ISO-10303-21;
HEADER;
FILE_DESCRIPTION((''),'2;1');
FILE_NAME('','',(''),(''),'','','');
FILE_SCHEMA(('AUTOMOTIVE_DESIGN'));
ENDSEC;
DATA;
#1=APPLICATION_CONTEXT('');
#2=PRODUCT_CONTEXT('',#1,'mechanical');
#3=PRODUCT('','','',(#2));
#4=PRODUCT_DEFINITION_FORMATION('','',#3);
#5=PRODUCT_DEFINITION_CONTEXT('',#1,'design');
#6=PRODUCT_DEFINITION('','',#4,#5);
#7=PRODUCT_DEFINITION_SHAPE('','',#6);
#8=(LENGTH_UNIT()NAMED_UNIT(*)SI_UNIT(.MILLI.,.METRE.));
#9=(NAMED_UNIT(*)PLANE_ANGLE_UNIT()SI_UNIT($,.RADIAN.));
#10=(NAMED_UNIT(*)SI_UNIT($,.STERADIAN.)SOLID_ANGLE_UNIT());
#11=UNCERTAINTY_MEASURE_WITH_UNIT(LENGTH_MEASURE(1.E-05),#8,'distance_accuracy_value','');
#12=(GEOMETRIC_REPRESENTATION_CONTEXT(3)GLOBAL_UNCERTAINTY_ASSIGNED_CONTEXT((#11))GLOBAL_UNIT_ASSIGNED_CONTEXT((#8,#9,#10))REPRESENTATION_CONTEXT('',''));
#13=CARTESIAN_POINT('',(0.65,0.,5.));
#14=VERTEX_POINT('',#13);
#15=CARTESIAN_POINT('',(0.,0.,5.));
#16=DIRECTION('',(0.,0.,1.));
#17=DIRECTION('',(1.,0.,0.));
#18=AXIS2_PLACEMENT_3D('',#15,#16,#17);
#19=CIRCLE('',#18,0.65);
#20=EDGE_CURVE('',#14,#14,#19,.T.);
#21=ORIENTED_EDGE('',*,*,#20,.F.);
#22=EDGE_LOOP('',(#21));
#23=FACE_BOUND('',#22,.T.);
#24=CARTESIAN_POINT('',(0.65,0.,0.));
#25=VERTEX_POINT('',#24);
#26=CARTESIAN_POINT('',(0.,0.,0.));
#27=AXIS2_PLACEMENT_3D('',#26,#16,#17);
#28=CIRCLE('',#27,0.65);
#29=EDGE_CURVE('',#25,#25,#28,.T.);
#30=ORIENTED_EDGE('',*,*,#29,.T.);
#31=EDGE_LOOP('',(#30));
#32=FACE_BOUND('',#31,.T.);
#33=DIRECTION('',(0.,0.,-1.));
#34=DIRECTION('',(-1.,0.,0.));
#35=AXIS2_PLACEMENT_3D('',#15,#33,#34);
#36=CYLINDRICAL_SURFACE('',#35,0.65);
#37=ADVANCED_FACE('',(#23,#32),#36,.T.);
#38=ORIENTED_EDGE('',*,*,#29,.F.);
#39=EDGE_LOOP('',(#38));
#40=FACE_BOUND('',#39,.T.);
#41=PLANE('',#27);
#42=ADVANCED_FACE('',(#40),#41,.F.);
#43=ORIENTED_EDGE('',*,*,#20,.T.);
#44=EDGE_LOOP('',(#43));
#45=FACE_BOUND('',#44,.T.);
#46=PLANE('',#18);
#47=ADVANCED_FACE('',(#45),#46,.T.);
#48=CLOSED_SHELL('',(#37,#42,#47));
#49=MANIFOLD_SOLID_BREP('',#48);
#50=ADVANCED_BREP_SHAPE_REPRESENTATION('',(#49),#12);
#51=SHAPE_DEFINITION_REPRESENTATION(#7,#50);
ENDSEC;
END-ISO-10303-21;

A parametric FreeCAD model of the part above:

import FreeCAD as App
import Part
import Sketcher

V = App.Vector
Q = App.Units.Quantity

doc = App.newDocument("Part")
body = doc.addObject("PartDesign::Body", "Body")

sketch1 = doc.addObject("Sketcher::SketchObject", "Sketch")
body.addObject(sketch1)
sketch1.AttachmentSupport = (doc.XY_Plane, [""])
sketch1.MapMode = "FlatFace"
sketch1.addGeometry(Part.Circle(V(0, 0, 0), V(0, 0, 1), 0.7), False)
sketch1.addConstraint(Sketcher.Constraint("Coincident", 0, 3, -1, 1))
sketch1.addConstraint(Sketcher.Constraint("Diameter", 0, Q("1.3 mm")))
pad1 = doc.addObject("PartDesign::Pad", "Pad")
body.addObject(pad1)
pad1.Profile = sketch1
pad1.Length = 5

doc.recompute()
